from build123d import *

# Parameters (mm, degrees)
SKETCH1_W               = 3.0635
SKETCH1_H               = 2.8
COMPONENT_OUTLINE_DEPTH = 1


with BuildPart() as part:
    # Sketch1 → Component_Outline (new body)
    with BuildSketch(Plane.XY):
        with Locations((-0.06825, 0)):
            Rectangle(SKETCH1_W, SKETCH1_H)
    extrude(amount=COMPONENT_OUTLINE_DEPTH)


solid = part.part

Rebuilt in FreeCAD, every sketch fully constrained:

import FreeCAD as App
import Part
import Sketcher
from FreeCAD import Vector


def add_polygon(sketch, points):
    """Adds a closed chain of lines whose ends are joined by coincident constraints."""
    first, n = sketch.GeometryCount, len(points)
    for a, b in zip(points, points[1:] + points[:1]):
        sketch.addGeometry(Part.LineSegment(App.Vector(*a, 0), App.Vector(*b, 0)), False)
    for i in range(n):
        sketch.addConstraint(Sketcher.Constraint("Coincident", first + i, 2, first + (i + 1) % n, 1))

doc = App.newDocument("Part")
body = doc.addObject("PartDesign::Body", "Body")

# Sketch on XY plane
sketch1 = body.newObject("Sketcher::SketchObject", "Sketch")
sketch1.AttachmentSupport = (doc.getObject("XY_Plane"), [""])
sketch1.MapMode = "FlatFace"
add_polygon(sketch1, [(-1.6, 1.4), (-1.6, -1.4), (1.5, -1.4), (1.5, 1.4)])  # lines 0-3
sketch1.addConstraint(Sketcher.Constraint("Vertical", 0))
sketch1.addConstraint(Sketcher.Constraint("Horizontal", 1))
sketch1.addConstraint(Sketcher.Constraint("Vertical", 2))
sketch1.addConstraint(Sketcher.Constraint("Horizontal", 3))
sketch1.addConstraint(Sketcher.Constraint("DistanceY", 0, 2, 0, 1, 2.8))
sketch1.addConstraint(Sketcher.Constraint("DistanceX", 0, 2, -1, 1, 1.6))
sketch1.addConstraint(Sketcher.Constraint("DistanceY", 0, 2, -1, 1, 1.4))
sketch1.addConstraint(Sketcher.Constraint("DistanceX", 1, 1, 1, 2, 3.0635))
pad1 = body.newObject("PartDesign::Pad", "Pad")
pad1.Profile = sketch1
pad1.Length = 1

doc.recompute()
